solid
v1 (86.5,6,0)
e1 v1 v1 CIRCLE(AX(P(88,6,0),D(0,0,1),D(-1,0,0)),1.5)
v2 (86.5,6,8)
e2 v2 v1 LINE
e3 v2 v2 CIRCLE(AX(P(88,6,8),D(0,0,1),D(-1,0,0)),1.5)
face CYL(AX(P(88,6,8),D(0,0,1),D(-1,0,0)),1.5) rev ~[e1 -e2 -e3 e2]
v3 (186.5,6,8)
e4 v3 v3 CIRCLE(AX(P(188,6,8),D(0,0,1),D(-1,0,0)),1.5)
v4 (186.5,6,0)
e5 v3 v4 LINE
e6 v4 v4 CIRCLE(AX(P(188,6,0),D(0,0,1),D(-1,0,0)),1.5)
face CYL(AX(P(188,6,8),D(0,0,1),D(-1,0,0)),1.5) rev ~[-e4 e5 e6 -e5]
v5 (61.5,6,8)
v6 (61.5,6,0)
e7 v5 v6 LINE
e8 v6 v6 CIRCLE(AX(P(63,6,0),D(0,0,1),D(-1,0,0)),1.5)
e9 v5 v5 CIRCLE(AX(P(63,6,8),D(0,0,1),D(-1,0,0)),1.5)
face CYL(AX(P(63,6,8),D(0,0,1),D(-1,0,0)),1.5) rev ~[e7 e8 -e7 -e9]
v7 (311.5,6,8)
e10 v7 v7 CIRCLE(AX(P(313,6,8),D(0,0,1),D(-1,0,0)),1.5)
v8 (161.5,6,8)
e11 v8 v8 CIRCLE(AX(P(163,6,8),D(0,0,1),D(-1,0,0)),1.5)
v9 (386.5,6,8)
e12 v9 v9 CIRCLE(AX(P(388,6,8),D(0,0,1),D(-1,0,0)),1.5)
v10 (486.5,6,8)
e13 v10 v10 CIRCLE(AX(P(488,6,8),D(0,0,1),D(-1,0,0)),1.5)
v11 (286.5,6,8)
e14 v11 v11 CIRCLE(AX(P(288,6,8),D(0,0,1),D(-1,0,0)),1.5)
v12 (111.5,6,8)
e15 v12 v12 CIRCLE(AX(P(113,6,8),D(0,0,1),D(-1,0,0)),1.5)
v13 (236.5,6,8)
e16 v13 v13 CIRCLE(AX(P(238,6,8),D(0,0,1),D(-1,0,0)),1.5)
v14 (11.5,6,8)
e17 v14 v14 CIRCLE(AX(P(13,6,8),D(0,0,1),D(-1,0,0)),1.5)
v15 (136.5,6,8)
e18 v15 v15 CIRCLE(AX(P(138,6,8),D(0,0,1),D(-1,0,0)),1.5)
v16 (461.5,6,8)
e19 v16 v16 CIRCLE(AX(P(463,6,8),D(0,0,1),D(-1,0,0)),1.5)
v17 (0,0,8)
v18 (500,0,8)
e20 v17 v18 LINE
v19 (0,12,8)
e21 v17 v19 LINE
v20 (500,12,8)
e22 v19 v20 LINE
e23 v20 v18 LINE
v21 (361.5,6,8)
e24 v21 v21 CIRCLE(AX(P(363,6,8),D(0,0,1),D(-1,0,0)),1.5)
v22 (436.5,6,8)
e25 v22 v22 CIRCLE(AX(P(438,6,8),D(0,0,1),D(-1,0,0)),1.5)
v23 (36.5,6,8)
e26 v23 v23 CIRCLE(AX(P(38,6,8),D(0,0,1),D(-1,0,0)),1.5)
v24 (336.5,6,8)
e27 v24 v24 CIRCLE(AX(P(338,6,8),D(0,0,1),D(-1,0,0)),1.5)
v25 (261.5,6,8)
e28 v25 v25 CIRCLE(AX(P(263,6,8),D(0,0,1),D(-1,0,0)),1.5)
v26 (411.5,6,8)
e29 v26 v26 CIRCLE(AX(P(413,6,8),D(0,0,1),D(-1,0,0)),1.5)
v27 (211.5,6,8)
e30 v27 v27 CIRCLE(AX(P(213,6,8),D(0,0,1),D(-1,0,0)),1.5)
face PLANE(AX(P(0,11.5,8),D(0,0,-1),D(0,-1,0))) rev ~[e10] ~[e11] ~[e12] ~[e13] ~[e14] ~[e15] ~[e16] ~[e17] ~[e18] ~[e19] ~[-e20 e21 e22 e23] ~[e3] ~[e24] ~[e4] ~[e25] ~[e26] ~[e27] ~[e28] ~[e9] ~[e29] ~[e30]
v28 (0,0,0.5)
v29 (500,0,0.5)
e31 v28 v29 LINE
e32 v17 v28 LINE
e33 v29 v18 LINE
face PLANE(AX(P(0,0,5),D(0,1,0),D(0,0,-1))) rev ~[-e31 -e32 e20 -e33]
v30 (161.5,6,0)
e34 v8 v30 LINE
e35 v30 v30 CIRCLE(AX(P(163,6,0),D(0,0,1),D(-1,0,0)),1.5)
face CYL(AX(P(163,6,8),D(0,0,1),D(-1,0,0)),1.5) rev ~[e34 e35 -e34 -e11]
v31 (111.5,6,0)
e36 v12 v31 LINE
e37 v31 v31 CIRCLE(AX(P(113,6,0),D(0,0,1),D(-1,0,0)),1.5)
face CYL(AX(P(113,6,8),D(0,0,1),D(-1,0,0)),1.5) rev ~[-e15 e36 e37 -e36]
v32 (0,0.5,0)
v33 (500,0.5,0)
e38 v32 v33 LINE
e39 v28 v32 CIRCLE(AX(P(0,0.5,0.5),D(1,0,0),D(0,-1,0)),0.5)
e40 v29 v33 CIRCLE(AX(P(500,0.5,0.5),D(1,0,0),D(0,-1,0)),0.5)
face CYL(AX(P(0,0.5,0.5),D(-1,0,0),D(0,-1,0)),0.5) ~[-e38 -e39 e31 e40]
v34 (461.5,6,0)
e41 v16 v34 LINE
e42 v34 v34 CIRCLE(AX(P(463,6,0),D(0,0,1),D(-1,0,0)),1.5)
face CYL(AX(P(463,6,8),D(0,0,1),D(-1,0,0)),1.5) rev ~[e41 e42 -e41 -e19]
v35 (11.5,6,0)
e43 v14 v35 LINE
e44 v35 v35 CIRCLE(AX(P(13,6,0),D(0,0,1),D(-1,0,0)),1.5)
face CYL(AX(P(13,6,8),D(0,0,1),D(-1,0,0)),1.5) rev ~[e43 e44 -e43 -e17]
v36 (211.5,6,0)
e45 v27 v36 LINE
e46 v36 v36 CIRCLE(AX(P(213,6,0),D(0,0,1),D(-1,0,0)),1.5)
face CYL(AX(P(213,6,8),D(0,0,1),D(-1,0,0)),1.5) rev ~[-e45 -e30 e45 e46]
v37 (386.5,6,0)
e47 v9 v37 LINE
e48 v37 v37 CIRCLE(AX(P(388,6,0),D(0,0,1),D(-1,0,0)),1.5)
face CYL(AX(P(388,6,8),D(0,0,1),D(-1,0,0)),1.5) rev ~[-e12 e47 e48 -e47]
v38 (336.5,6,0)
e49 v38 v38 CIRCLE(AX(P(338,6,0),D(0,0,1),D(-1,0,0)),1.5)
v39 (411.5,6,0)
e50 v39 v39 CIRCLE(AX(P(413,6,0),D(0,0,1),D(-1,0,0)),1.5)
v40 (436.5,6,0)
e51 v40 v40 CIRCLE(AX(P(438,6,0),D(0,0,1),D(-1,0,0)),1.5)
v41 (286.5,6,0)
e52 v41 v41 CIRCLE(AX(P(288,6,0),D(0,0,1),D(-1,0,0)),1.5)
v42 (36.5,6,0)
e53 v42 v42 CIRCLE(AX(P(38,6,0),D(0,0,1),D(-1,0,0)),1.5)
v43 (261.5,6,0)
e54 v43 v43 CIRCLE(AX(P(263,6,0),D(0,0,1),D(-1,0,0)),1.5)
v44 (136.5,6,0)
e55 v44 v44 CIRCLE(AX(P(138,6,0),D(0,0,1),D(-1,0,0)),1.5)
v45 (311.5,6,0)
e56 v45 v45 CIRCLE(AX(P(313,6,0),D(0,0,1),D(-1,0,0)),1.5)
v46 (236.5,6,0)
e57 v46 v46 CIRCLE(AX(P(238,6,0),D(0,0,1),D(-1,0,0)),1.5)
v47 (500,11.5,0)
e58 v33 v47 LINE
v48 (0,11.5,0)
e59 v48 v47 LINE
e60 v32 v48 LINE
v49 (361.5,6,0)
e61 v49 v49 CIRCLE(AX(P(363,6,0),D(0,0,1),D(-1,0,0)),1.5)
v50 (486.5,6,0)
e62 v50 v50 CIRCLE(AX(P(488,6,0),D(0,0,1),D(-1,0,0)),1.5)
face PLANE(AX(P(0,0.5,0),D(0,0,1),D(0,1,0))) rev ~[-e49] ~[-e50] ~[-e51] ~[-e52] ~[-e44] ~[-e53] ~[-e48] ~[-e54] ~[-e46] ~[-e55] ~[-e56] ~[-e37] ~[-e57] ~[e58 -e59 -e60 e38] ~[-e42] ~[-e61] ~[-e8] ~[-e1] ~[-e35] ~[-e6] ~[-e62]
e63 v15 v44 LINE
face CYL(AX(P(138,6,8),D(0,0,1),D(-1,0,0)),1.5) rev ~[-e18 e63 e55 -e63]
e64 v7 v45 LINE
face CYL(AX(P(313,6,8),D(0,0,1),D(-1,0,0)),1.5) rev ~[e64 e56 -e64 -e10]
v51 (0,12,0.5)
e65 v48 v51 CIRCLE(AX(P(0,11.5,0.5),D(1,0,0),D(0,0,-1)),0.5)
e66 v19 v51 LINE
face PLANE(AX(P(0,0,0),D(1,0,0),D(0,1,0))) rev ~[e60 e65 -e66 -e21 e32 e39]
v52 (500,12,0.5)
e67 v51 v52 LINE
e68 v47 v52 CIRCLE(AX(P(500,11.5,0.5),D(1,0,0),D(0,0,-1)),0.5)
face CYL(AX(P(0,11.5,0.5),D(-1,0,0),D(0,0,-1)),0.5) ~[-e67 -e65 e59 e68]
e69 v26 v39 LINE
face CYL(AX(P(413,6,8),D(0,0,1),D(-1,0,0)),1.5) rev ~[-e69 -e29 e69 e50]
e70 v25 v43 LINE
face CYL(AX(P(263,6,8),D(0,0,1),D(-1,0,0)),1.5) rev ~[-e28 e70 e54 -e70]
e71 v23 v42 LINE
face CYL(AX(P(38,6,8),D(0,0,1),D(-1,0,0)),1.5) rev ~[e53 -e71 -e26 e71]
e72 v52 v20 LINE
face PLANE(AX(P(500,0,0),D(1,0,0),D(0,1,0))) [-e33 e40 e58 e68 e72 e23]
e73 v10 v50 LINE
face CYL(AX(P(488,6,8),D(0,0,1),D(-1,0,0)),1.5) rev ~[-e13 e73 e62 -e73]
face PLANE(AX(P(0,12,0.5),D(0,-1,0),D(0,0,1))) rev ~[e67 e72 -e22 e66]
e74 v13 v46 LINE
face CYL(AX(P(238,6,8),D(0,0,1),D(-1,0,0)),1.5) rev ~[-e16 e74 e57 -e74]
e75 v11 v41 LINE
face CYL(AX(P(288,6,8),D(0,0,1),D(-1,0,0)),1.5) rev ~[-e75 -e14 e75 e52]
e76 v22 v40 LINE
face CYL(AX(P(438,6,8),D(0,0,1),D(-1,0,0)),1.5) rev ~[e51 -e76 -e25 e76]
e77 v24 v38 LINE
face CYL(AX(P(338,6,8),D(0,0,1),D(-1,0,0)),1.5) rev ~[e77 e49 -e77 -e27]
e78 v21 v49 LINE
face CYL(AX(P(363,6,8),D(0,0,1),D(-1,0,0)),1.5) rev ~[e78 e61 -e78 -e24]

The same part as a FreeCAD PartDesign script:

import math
import FreeCAD as App
import Part
import Sketcher

V = App.Vector
Q = App.Units.Quantity

doc = App.newDocument("Part")
params = doc.addObject("Spreadsheet::Sheet", "Params")
for row, (alias, value) in enumerate([
    ("sketch1_width", "12 mm"),
    ("sketch1_radius", "0.5 mm"),
    ("pad1_length", "500 mm"),
    ("sketch2_diameter", "3 mm"),
    ("pocket1_length", "50 mm"),
], start=1):
    params.set(f"A{row}", alias)
    params.set(f"B{row}", "=" + value)
    params.setAlias(f"B{row}", alias)

body = doc.addObject("PartDesign::Body", "Body")

# Sketch on YZ plane
sketch1 = doc.addObject("Sketcher::SketchObject", "Sketch")
body.addObject(sketch1)
sketch1.AttachmentSupport = (doc.YZ_Plane, [""])
sketch1.MapMode = "FlatFace"
sketch1.addGeometry(Part.ArcOfCircle(Part.Circle(V(0.5, 0.5, 0), V(0, 0, 1), 0.5), math.radians(180), math.radians(270)), False)
sketch1.addGeometry(Part.LineSegment(V(0.5, 0, 0), V(11.5, 0, 0)), False)
sketch1.addGeometry(Part.ArcOfCircle(Part.Circle(V(11.5, 0.5, 0), V(0, 0, 1), 0.5), math.radians(-90), math.radians(0)), False)
sketch1.addGeometry(Part.LineSegment(V(12, 0.5, 0), V(12, 8, 0)), False)
sketch1.addGeometry(Part.LineSegment(V(12, 8, 0), V(0, 8, 0)), False)
sketch1.addGeometry(Part.LineSegment(V(0, 8, 0), V(0, 0.5, 0)), False)
sketch1.addConstraint(Sketcher.Constraint("Tangent", 0, 2, 1, 1))
sketch1.addConstraint(Sketcher.Constraint("Tangent", 1, 2, 2, 1))
sketch1.addConstraint(Sketcher.Constraint("Tangent", 2, 2, 3, 1))
sketch1.addConstraint(Sketcher.Constraint("Coincident", 3, 2, 4, 1))
sketch1.addConstraint(Sketcher.Constraint("Coincident", 4, 2, 5, 1))
sketch1.addConstraint(Sketcher.Constraint("Tangent", 5, 2, 0, 1))
sketch1.addConstraint(Sketcher.Constraint("Horizontal", 1))
sketch1.addConstraint(Sketcher.Constraint("Vertical", 3))
sketch1.addConstraint(Sketcher.Constraint("Horizontal", 4))
sketch1.addConstraint(Sketcher.Constraint("Vertical", 5))
sketch1.addConstraint(Sketcher.Constraint("Equal", 0, 2))
sketch1.addConstraint(Sketcher.Constraint("PointOnObject", 0, 2, -1))
sketch1.addConstraint(Sketcher.Constraint("PointOnObject", 4, 2, -2))
sketch1.addConstraint(Sketcher.Constraint("DistanceX", 4, 2, 4, 1, Q("12 mm")))
sketch1.addConstraint(Sketcher.Constraint("DistanceY", -1, 1, 3, 2, Q("8 mm")))
sketch1.addConstraint(Sketcher.Constraint("Radius", 0, Q("0.5 mm")))
sketch1.setExpression("Constraints[13]", "Params.sketch1_width")
sketch1.setExpression("Constraints[15]", "Params.sketch1_radius")
pad1 = doc.addObject("PartDesign::Pad", "Pad")
body.addObject(pad1)
pad1.Profile = sketch1
pad1.setExpression("Length", "Params.pad1_length")

# Sketch on XY plane
sketch2 = doc.addObject("Sketcher::SketchObject", "Sketch001")
body.addObject(sketch2)
sketch2.AttachmentSupport = (doc.XY_Plane, [""])
sketch2.MapMode = "FlatFace"
sketch2.AttachmentOffset = App.Placement(V(0, 0, 8), App.Rotation())
sketch2.addGeometry(Part.Circle(V(488, 6, 0), V(0, 0, 1), 1.5), False)
sketch2.addGeometry(Part.Circle(V(463, 6, 0), V(0, 0, 1), 1.5), False)
sketch2.addGeometry(Part.Circle(V(438, 6, 0), V(0, 0, 1), 1.5), False)
sketch2.addGeometry(Part.Circle(V(413, 6, 0), V(0, 0, 1), 1.5), False)
sketch2.addGeometry(Part.Circle(V(388, 6, 0), V(0, 0, 1), 1.5), False)
sketch2.addGeometry(Part.Circle(V(363, 6, 0), V(0, 0, 1), 1.5), False)
sketch2.addGeometry(Part.Circle(V(338, 6, 0), V(0, 0, 1), 1.5), False)
sketch2.addGeometry(Part.Circle(V(313, 6, 0), V(0, 0, 1), 1.5), False)
sketch2.addGeometry(Part.Circle(V(288, 6, 0), V(0, 0, 1), 1.5), False)
sketch2.addGeometry(Part.Circle(V(263, 6, 0), V(0, 0, 1), 1.5), False)
sketch2.addGeometry(Part.Circle(V(238, 6, 0), V(0, 0, 1), 1.5), False)
sketch2.addGeometry(Part.Circle(V(213, 6, 0), V(0, 0, 1), 1.5), False)
sketch2.addGeometry(Part.Circle(V(188, 6, 0), V(0, 0, 1), 1.5), False)
sketch2.addGeometry(Part.Circle(V(163, 6, 0), V(0, 0, 1), 1.5), False)
sketch2.addGeometry(Part.Circle(V(138, 6, 0), V(0, 0, 1), 1.5), False)
sketch2.addGeometry(Part.Circle(V(113, 6, 0), V(0, 0, 1), 1.5), False)
sketch2.addGeometry(Part.Circle(V(88, 6, 0), V(0, 0, 1), 1.5), False)
sketch2.addGeometry(Part.Circle(V(63, 6, 0), V(0, 0, 1), 1.5), False)
sketch2.addGeometry(Part.Circle(V(38, 6, 0), V(0, 0, 1), 1.5), False)
sketch2.addGeometry(Part.Circle(V(13, 6, 0), V(0, 0, 1), 1.5), False)
sketch2.addConstraint(Sketcher.Constraint("Equal", 0, 1))
sketch2.addConstraint(Sketcher.Constraint("Equal", 1, 2))
sketch2.addConstraint(Sketcher.Constraint("Equal", 2, 3))
sketch2.addConstraint(Sketcher.Constraint("Equal", 3, 4))
sketch2.addConstraint(Sketcher.Constraint("Equal", 4, 5))
sketch2.addConstraint(Sketcher.Constraint("Equal", 5, 6))
sketch2.addConstraint(Sketcher.Constraint("Equal", 6, 7))
sketch2.addConstraint(Sketcher.Constraint("Equal", 7, 8))
sketch2.addConstraint(Sketcher.Constraint("Equal", 8, 9))
sketch2.addConstraint(Sketcher.Constraint("Equal", 9, 10))
sketch2.addConstraint(Sketcher.Constraint("Equal", 10, 11))
sketch2.addConstraint(Sketcher.Constraint("Equal", 11, 12))
sketch2.addConstraint(Sketcher.Constraint("Equal", 12, 13))
sketch2.addConstraint(Sketcher.Constraint("Equal", 13, 14))
sketch2.addConstraint(Sketcher.Constraint("Equal", 14, 15))
sketch2.addConstraint(Sketcher.Constraint("Equal", 15, 16))
sketch2.addConstraint(Sketcher.Constraint("Equal", 16, 17))
sketch2.addConstraint(Sketcher.Constraint("Equal", 17, 18))
sketch2.addConstraint(Sketcher.Constraint("Equal", 18, 19))
sketch2.addConstraint(Sketcher.Constraint("Horizontal", 0, 3, 1, 3))
sketch2.addConstraint(Sketcher.Constraint("Horizontal", 1, 3, 2, 3))
sketch2.addConstraint(Sketcher.Constraint("Horizontal", 2, 3, 3, 3))
sketch2.addConstraint(Sketcher.Constraint("Horizontal", 3, 3, 4, 3))
sketch2.addConstraint(Sketcher.Constraint("Horizontal", 4, 3, 5, 3))
sketch2.addConstraint(Sketcher.Constraint("Horizontal", 5, 3, 6, 3))
sketch2.addConstraint(Sketcher.Constraint("Horizontal", 6, 3, 7, 3))
sketch2.addConstraint(Sketcher.Constraint("Horizontal", 7, 3, 8, 3))
sketch2.addConstraint(Sketcher.Constraint("Horizontal", 8, 3, 9, 3))
sketch2.addConstraint(Sketcher.Constraint("Horizontal", 9, 3, 10, 3))
sketch2.addConstraint(Sketcher.Constraint("Horizontal", 10, 3, 11, 3))
sketch2.addConstraint(Sketcher.Constraint("Horizontal", 11, 3, 12, 3))
sketch2.addConstraint(Sketcher.Constraint("Horizontal", 12, 3, 13, 3))
sketch2.addConstraint(Sketcher.Constraint("Horizontal", 13, 3, 14, 3))
sketch2.addConstraint(Sketcher.Constraint("Horizontal", 14, 3, 15, 3))
sketch2.addConstraint(Sketcher.Constraint("Horizontal", 15, 3, 16, 3))
sketch2.addConstraint(Sketcher.Constraint("Horizontal", 16, 3, 17, 3))
sketch2.addConstraint(Sketcher.Constraint("Horizontal", 17, 3, 18, 3))
sketch2.addConstraint(Sketcher.Constraint("Horizontal", 18, 3, 19, 3))
sketch2.addConstraint(Sketcher.Constraint("Diameter", 0, Q("3 mm")))
sketch2.addConstraint(Sketcher.Constraint("DistanceX", 1, 3, 0, 3, Q("25 mm")))
sketch2.addConstraint(Sketcher.Constraint("DistanceX", 2, 3, 1, 3, Q("25 mm")))
sketch2.addConstraint(Sketcher.Constraint("DistanceX", 3, 3, 2, 3, Q("25 mm")))
sketch2.addConstraint(Sketcher.Constraint("DistanceX", 4, 3, 3, 3, Q("25 mm")))
sketch2.addConstraint(Sketcher.Constraint("DistanceX", 5, 3, 4, 3, Q("25 mm")))
sketch2.addConstraint(Sketcher.Constraint("DistanceX", 6, 3, 5, 3, Q("25 mm")))
sketch2.addConstraint(Sketcher.Constraint("DistanceX", 7, 3, 6, 3, Q("25 mm")))
sketch2.addConstraint(Sketcher.Constraint("DistanceX", 8, 3, 7, 3, Q("25 mm")))
sketch2.addConstraint(Sketcher.Constraint("DistanceX", 9, 3, 8, 3, Q("25 mm")))
sketch2.addConstraint(Sketcher.Constraint("DistanceX", 10, 3, 9, 3, Q("25 mm")))
sketch2.addConstraint(Sketcher.Constraint("DistanceX", 11, 3, 10, 3, Q("25 mm")))
sketch2.addConstraint(Sketcher.Constraint("DistanceX", 12, 3, 11, 3, Q("25 mm")))
sketch2.addConstraint(Sketcher.Constraint("DistanceX", 13, 3, 12, 3, Q("25 mm")))
sketch2.addConstraint(Sketcher.Constraint("DistanceX", 14, 3, 13, 3, Q("25 mm")))
sketch2.addConstraint(Sketcher.Constraint("DistanceX", 15, 3, 14, 3, Q("25 mm")))
sketch2.addConstraint(Sketcher.Constraint("DistanceX", 16, 3, 15, 3, Q("25 mm")))
sketch2.addConstraint(Sketcher.Constraint("DistanceX", 17, 3, 16, 3, Q("25 mm")))
sketch2.addConstraint(Sketcher.Constraint("DistanceX", 18, 3, 17, 3, Q("25 mm")))
sketch2.addConstraint(Sketcher.Constraint("DistanceX", 19, 3, 18, 3, Q("25 mm")))
sketch2.addConstraint(Sketcher.Constraint("DistanceX", -1, 1, 0, 3, Q("488 mm")))
sketch2.addConstraint(Sketcher.Constraint("DistanceY", -1, 1, 0, 3, Q("6 mm")))
sketch2.setExpression("Constraints[38]", "Params.sketch2_diameter")
pocket1 = doc.addObject("PartDesign::Pocket", "Pocket")
body.addObject(pocket1)
pocket1.Profile = sketch2
pocket1.setExpression("Length", "Params.pocket1_length")

doc.recompute()
